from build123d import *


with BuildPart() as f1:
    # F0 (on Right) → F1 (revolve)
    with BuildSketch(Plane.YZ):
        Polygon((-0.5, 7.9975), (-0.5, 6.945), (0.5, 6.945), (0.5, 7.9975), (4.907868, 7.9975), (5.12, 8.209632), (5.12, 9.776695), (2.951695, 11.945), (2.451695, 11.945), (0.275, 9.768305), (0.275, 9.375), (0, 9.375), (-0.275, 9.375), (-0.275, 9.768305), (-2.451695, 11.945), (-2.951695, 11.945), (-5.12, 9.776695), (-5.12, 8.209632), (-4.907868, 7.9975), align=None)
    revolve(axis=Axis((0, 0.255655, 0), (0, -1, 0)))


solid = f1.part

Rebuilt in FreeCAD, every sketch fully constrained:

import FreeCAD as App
import Part
import Sketcher

V = App.Vector
Q = App.Units.Quantity

doc = App.newDocument("Part")
params = doc.addObject("Spreadsheet::Sheet", "Params")
for row, (alias, value) in enumerate([
    ("sketch1_width", "1 mm"),
    ("sketch1_width2", "0.5 mm"),
    ("sketch1_length", "0.3 mm"),
    ("sketch1_width3", "0.55 mm"),
    ("revolution_angle", "360 deg"),
], start=1):
    params.set(f"A{row}", alias)
    params.set(f"B{row}", "=" + value)
    params.setAlias(f"B{row}", alias)

body = doc.addObject("PartDesign::Body", "Body")

sketch1 = doc.addObject("Sketcher::SketchObject", "Sketch")
body.addObject(sketch1)
sketch1.AttachmentSupport = (doc.YZ_Plane, [""])
sketch1.MapMode = "FlatFace"
sketch1.addGeometry(Part.LineSegment(V(-0.5, 8, 0), V(-0.5, 6.95, 0)), False)
sketch1.addGeometry(Part.LineSegment(V(-0.5, 6.95, 0), V(0.5, 6.95, 0)), False)
sketch1.addGeometry(Part.LineSegment(V(0.5, 6.95, 0), V(0.5, 8, 0)), False)
sketch1.addGeometry(Part.LineSegment(V(0.5, 8, 0), V(4.91, 8, 0)), False)
sketch1.addGeometry(Part.LineSegment(V(4.91, 8, 0), V(5.12, 8.21, 0)), False)
sketch1.addGeometry(Part.LineSegment(V(5.12, 8.21, 0), V(5.12, 9.78, 0)), False)
sketch1.addGeometry(Part.LineSegment(V(5.12, 9.78, 0), V(2.95, 11.95, 0)), False)
sketch1.addGeometry(Part.LineSegment(V(2.95, 11.95, 0), V(2.45, 11.95, 0)), False)
sketch1.addGeometry(Part.LineSegment(V(2.45, 11.95, 0), V(0.28, 9.77, 0)), False)
sketch1.addGeometry(Part.LineSegment(V(0.28, 9.77, 0), V(0.28, 9.38, 0)), False)
sketch1.addGeometry(Part.LineSegment(V(0.28, 9.38, 0), V(-0.28, 9.38, 0)), False)
sketch1.addGeometry(Part.LineSegment(V(-0.28, 9.38, 0), V(-0.28, 9.77, 0)), False)
sketch1.addGeometry(Part.LineSegment(V(-0.28, 9.77, 0), V(-2.45, 11.95, 0)), False)
sketch1.addGeometry(Part.LineSegment(V(-2.45, 11.95, 0), V(-2.95, 11.95, 0)), False)
sketch1.addGeometry(Part.LineSegment(V(-2.95, 11.95, 0), V(-5.12, 9.78, 0)), False)
sketch1.addGeometry(Part.LineSegment(V(-5.12, 9.78, 0), V(-5.12, 8.21, 0)), False)
sketch1.addGeometry(Part.LineSegment(V(-5.12, 8.21, 0), V(-4.91, 8, 0)), False)
sketch1.addGeometry(Part.LineSegment(V(-4.91, 8, 0), V(-0.5, 8, 0)), False)
sketch1.addConstraint(Sketcher.Constraint("Coincident", 0, 2, 1, 1))
sketch1.addConstraint(Sketcher.Constraint("Coincident", 1, 2, 2, 1))
sketch1.addConstraint(Sketcher.Constraint("Coincident", 2, 2, 3, 1))
sketch1.addConstraint(Sketcher.Constraint("Coincident", 3, 2, 4, 1))
sketch1.addConstraint(Sketcher.Constraint("Coincident", 4, 2, 5, 1))
sketch1.addConstraint(Sketcher.Constraint("Coincident", 5, 2, 6, 1))
sketch1.addConstraint(Sketcher.Constraint("Coincident", 6, 2, 7, 1))
sketch1.addConstraint(Sketcher.Constraint("Coincident", 7, 2, 8, 1))
sketch1.addConstraint(Sketcher.Constraint("Coincident", 8, 2, 9, 1))
sketch1.addConstraint(Sketcher.Constraint("Coincident", 9, 2, 10, 1))
sketch1.addConstraint(Sketcher.Constraint("Coincident", 10, 2, 11, 1))
sketch1.addConstraint(Sketcher.Constraint("Coincident", 11, 2, 12, 1))
sketch1.addConstraint(Sketcher.Constraint("Coincident", 12, 2, 13, 1))
sketch1.addConstraint(Sketcher.Constraint("Coincident", 13, 2, 14, 1))
sketch1.addConstraint(Sketcher.Constraint("Coincident", 14, 2, 15, 1))
sketch1.addConstraint(Sketcher.Constraint("Coincident", 15, 2, 16, 1))
sketch1.addConstraint(Sketcher.Constraint("Coincident", 16, 2, 17, 1))
sketch1.addConstraint(Sketcher.Constraint("Coincident", 17, 2, 0, 1))
sketch1.addConstraint(Sketcher.Constraint("Vertical", 0))
sketch1.addConstraint(Sketcher.Constraint("Horizontal", 1))
sketch1.addConstraint(Sketcher.Constraint("Vertical", 2))
sketch1.addConstraint(Sketcher.Constraint("Horizontal", 3))
sketch1.addConstraint(Sketcher.Constraint("Vertical", 5))
sketch1.addConstraint(Sketcher.Constraint("Horizontal", 7))
sketch1.addConstraint(Sketcher.Constraint("Vertical", 9))
sketch1.addConstraint(Sketcher.Constraint("Horizontal", 10))
sketch1.addConstraint(Sketcher.Constraint("Vertical", 11))
sketch1.addConstraint(Sketcher.Constraint("Horizontal", 13))
sketch1.addConstraint(Sketcher.Constraint("Vertical", 15))
sketch1.addConstraint(Sketcher.Constraint("Horizontal", 17))
sketch1.addConstraint(Sketcher.Constraint("Symmetric", 8, 2, 11, 2, -2))
sketch1.addConstraint(Sketcher.Constraint("Symmetric", 7, 2, 12, 2, -2))
sketch1.addConstraint(Sketcher.Constraint("Symmetric", 5, 2, 14, 2, -2))
sketch1.addConstraint(Sketcher.Constraint("Symmetric", 3, 2, 16, 2, -2))
sketch1.addConstraint(Sketcher.Constraint("Perpendicular", 4, 6))
sketch1.addConstraint(Sketcher.Constraint("Perpendicular", 6, 8))
sketch1.addConstraint(Sketcher.Constraint("Perpendicular", 8, 12))
sketch1.addConstraint(Sketcher.Constraint("Perpendicular", 12, 14))
sketch1.addConstraint(Sketcher.Constraint("Perpendicular", 14, 16))
sketch1.addConstraint(Sketcher.Constraint("Equal", 3, 17))
sketch1.addConstraint(Sketcher.Constraint("DistanceX", 1, 1, 1, 2, Q("1 mm")))
sketch1.addConstraint(Sketcher.Constraint("DistanceX", 7, 2, 7, 1, Q("0.5 mm")))
sketch1.addConstraint(Sketcher.Constraint("DistanceY", 1, 2, 6, 2, Q("5 mm")))
sketch1.addConstraint(Sketcher.Constraint("Distance", 4, Q("0.3 mm")))
sketch1.addConstraint(Sketcher.Constraint("DistanceX", 10, 2, 10, 1, Q("0.55 mm")))
sketch1.addConstraint(Sketcher.Constraint("DistanceX", -1, 1, 4, 2, Q("5.12 mm")))
sketch1.addConstraint(Sketcher.Constraint("DistanceY", 1, 2, 9, 2, Q("2.43 mm")))
sketch1.addConstraint(Sketcher.Constraint("DistanceY", 0, 2, 0, 1, Q("1.0525 mm")))
sketch1.addConstraint(Sketcher.Constraint("DistanceY", -1, 1, 0, 2, Q("6.945 mm")))
sketch1.addConstraint(Sketcher.Constraint("Distance", 8, Q("3.078312 mm")))
sketch1.setExpression("Constraints[40]", "Params.sketch1_width")
sketch1.setExpression("Constraints[41]", "Params.sketch1_width2")
sketch1.setExpression("Constraints[43]", "Params.sketch1_length")
sketch1.setExpression("Constraints[44]", "Params.sketch1_width3")
revolution = doc.addObject("PartDesign::Revolution", "Revolution")
body.addObject(revolution)
revolution.Profile = sketch1
revolution.ReferenceAxis = (sketch1, ["H_Axis"])
revolution.setExpression("Angle", "Params.revolution_angle")

doc.recompute()
